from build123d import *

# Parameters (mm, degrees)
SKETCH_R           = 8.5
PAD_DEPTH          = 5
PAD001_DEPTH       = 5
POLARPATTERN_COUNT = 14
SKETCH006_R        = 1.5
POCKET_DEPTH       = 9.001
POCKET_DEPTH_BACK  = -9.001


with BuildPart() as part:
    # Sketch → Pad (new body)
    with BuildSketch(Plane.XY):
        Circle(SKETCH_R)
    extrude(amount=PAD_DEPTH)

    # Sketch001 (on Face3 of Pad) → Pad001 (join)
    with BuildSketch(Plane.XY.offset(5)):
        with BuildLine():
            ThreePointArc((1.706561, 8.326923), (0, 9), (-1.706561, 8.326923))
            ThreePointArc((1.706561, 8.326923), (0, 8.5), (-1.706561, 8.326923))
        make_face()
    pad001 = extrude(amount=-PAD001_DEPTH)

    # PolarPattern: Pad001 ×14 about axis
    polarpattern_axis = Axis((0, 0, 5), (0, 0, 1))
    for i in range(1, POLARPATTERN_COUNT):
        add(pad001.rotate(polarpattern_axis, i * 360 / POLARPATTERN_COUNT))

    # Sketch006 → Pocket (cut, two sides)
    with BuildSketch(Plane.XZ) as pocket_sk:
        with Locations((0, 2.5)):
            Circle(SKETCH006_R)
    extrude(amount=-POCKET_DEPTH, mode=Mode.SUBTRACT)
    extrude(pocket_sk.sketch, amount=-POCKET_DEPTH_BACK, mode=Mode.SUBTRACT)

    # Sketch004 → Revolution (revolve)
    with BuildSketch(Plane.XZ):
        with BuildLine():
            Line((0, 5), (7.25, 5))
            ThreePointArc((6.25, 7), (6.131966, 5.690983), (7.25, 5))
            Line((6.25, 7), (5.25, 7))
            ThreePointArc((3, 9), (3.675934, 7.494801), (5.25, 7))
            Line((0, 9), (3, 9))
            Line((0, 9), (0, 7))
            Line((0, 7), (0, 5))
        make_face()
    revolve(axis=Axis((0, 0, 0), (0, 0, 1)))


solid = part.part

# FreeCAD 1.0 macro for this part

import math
import FreeCAD as App
import Part
import Sketcher

V = App.Vector
Q = App.Units.Quantity

doc = App.newDocument("Part")
body = doc.addObject("PartDesign::Body", "Body")

# Sketch on XY plane
sketch1 = doc.addObject("Sketcher::SketchObject", "Sketch")
body.addObject(sketch1)
sketch1.AttachmentSupport = (doc.XY_Plane, [""])
sketch1.MapMode = "FlatFace"
sketch1.addGeometry(Part.Circle(V(0, 0, 0), V(0, 0, 1), 8), False)
sketch1.addConstraint(Sketcher.Constraint("Coincident", 0, 3, -1, 1))
sketch1.addConstraint(Sketcher.Constraint("Diameter", 0, Q("17 mm")))
pad1 = doc.addObject("PartDesign::Pad", "Pad")
body.addObject(pad1)
pad1.Profile = sketch1
pad1.Length = 5

# Sketch on XY plane
sketch2 = doc.addObject("Sketcher::SketchObject", "Sketch001")
body.addObject(sketch2)
sketch2.AttachmentSupport = (doc.XY_Plane, [""])
sketch2.MapMode = "FlatFace"
sketch2.AttachmentOffset = App.Placement(V(0, 0, 5), App.Rotation())
sketch2.addGeometry(Part.ArcOfCircle(Part.Circle(V(0, 6.5, 0), V(0, 0, 1), 2.5), math.radians(47), math.radians(133)), False)
sketch2.addGeometry(Part.ArcOfCircle(Part.Circle(V(0, 0, 0), V(0, 0, 1), 8.5), math.radians(78), math.radians(102)), False)
sketch2.addConstraint(Sketcher.Constraint("Coincident", 0, 1, 1, 1))
sketch2.addConstraint(Sketcher.Constraint("Coincident", 1, 2, 0, 2))
sketch2.addConstraint(Sketcher.Constraint("Coincident", 1, 3, -1, 1))
sketch2.addConstraint(Sketcher.Constraint("PointOnObject", 0, 3, -2))
sketch2.addConstraint(Sketcher.Constraint("Radius", 0, Q("2.499999 mm")))
sketch2.addConstraint(Sketcher.Constraint("DistanceY", -1, 1, 0, 3, Q("6.500001 mm")))
sketch2.addConstraint(Sketcher.Constraint("Radius", 1, Q("8.499992 mm")))
pad2 = doc.addObject("PartDesign::Pad", "Pad001")
body.addObject(pad2)
pad2.Profile = sketch2
pad2.Length = 5
pad2.Reversed = True
doc.recompute()

polarpattern = doc.addObject("PartDesign::PolarPattern", "PolarPattern")
body.addObject(polarpattern)
polarpattern.Originals = [pad2]
polarpattern.Axis = (doc.Z_Axis, [""])
polarpattern.Angle = 360
polarpattern.Occurrences = 14
body.Tip = polarpattern

# Sketch on XZ plane
sketch3 = doc.addObject("Sketcher::SketchObject", "Sketch002")
body.addObject(sketch3)
sketch3.AttachmentSupport = (doc.XZ_Plane, [""])
sketch3.MapMode = "FlatFace"
sketch3.addGeometry(Part.Circle(V(0, 2.5, 0), V(0, 0, 1), 1.5), False)
sketch3.addConstraint(Sketcher.Constraint("PointOnObject", 0, 3, -2))
sketch3.addConstraint(Sketcher.Constraint("Diameter", 0, Q("3 mm")))
sketch3.addConstraint(Sketcher.Constraint("DistanceY", -1, 1, 0, 3, Q("2.5 mm")))
pocket1 = doc.addObject("PartDesign::Pocket", "Pocket")
body.addObject(pocket1)
pocket1.Profile = sketch3
pocket1.Type = "ThroughAll"
pocket1.Midplane = True

# Sketch on XZ plane
sketch4 = doc.addObject("Sketcher::SketchObject", "Sketch003")
body.addObject(sketch4)
sketch4.AttachmentSupport = (doc.XZ_Plane, [""])
sketch4.MapMode = "FlatFace"
sketch4.addGeometry(Part.LineSegment(V(0, 5, 0), V(7.2, 5, 0)), False)
sketch4.addGeometry(Part.ArcOfCircle(Part.Circle(V(7.2, 6.2, 0), V(0, 0, 1), 1.2), math.radians(143), math.radians(270)), False)
sketch4.addGeometry(Part.LineSegment(V(6.2, 7, 0), V(5.2, 7, 0)), False)
sketch4.addGeometry(Part.ArcOfCircle(Part.Circle(V(5, 9, 0), V(0, 0, 1), 2), math.radians(-180), math.radians(-83)), False)
sketch4.addGeometry(Part.LineSegment(V(3, 9, 0), V(0, 9, 0)), False)
sketch4.addGeometry(Part.LineSegment(V(0, 9, 0), V(0, 5, 0)), False)
sketch4.addConstraint(Sketcher.Constraint("Tangent", 0, 2, 1, 2))
sketch4.addConstraint(Sketcher.Constraint("Coincident", 1, 1, 2, 1))
sketch4.addConstraint(Sketcher.Constraint("Coincident", 2, 2, 3, 2))
sketch4.addConstraint(Sketcher.Constraint("Coincident", 3, 1, 4, 1))
sketch4.addConstraint(Sketcher.Constraint("Coincident", 4, 2, 5, 1))
sketch4.addConstraint(Sketcher.Constraint("Coincident", 5, 2, 0, 1))
sketch4.addConstraint(Sketcher.Constraint("Horizontal", 0))
sketch4.addConstraint(Sketcher.Constraint("Horizontal", 2))
sketch4.addConstraint(Sketcher.Constraint("Horizontal", 4))
sketch4.addConstraint(Sketcher.Constraint("Vertical", 5))
sketch4.addConstraint(Sketcher.Constraint("PointOnObject", 4, 2, -2))
sketch4.addConstraint(Sketcher.Constraint("DistanceX", 2, 2, 2, 1, Q("1 mm")))
sketch4.addConstraint(Sketcher.Constraint("DistanceX", 4, 2, 4, 1, Q("3 mm")))
sketch4.addConstraint(Sketcher.Constraint("DistanceY", 5, 2, 5, 1, Q("4 mm")))
sketch4.addConstraint(Sketcher.Constraint("Radius", 1, Q("1.25 mm")))
sketch4.addConstraint(Sketcher.Constraint("DistanceY", -1, 1, 3, 3, Q("9.000001 mm")))
sketch4.addConstraint(Sketcher.Constraint("DistanceY", -1, 1, 0, 2, Q("5 mm")))
sketch4.addConstraint(Sketcher.Constraint("DistanceY", -1, 1, 1, 1, Q("7 mm")))
sketch4.addConstraint(Sketcher.Constraint("DistanceX", 0, 1, 0, 2, Q("7.25 mm")))
revolution = doc.addObject("PartDesign::Revolution", "Revolution")
body.addObject(revolution)
revolution.Profile = sketch4
revolution.ReferenceAxis = (sketch4, ["V_Axis"])
revolution.Angle = 360

doc.recompute()
